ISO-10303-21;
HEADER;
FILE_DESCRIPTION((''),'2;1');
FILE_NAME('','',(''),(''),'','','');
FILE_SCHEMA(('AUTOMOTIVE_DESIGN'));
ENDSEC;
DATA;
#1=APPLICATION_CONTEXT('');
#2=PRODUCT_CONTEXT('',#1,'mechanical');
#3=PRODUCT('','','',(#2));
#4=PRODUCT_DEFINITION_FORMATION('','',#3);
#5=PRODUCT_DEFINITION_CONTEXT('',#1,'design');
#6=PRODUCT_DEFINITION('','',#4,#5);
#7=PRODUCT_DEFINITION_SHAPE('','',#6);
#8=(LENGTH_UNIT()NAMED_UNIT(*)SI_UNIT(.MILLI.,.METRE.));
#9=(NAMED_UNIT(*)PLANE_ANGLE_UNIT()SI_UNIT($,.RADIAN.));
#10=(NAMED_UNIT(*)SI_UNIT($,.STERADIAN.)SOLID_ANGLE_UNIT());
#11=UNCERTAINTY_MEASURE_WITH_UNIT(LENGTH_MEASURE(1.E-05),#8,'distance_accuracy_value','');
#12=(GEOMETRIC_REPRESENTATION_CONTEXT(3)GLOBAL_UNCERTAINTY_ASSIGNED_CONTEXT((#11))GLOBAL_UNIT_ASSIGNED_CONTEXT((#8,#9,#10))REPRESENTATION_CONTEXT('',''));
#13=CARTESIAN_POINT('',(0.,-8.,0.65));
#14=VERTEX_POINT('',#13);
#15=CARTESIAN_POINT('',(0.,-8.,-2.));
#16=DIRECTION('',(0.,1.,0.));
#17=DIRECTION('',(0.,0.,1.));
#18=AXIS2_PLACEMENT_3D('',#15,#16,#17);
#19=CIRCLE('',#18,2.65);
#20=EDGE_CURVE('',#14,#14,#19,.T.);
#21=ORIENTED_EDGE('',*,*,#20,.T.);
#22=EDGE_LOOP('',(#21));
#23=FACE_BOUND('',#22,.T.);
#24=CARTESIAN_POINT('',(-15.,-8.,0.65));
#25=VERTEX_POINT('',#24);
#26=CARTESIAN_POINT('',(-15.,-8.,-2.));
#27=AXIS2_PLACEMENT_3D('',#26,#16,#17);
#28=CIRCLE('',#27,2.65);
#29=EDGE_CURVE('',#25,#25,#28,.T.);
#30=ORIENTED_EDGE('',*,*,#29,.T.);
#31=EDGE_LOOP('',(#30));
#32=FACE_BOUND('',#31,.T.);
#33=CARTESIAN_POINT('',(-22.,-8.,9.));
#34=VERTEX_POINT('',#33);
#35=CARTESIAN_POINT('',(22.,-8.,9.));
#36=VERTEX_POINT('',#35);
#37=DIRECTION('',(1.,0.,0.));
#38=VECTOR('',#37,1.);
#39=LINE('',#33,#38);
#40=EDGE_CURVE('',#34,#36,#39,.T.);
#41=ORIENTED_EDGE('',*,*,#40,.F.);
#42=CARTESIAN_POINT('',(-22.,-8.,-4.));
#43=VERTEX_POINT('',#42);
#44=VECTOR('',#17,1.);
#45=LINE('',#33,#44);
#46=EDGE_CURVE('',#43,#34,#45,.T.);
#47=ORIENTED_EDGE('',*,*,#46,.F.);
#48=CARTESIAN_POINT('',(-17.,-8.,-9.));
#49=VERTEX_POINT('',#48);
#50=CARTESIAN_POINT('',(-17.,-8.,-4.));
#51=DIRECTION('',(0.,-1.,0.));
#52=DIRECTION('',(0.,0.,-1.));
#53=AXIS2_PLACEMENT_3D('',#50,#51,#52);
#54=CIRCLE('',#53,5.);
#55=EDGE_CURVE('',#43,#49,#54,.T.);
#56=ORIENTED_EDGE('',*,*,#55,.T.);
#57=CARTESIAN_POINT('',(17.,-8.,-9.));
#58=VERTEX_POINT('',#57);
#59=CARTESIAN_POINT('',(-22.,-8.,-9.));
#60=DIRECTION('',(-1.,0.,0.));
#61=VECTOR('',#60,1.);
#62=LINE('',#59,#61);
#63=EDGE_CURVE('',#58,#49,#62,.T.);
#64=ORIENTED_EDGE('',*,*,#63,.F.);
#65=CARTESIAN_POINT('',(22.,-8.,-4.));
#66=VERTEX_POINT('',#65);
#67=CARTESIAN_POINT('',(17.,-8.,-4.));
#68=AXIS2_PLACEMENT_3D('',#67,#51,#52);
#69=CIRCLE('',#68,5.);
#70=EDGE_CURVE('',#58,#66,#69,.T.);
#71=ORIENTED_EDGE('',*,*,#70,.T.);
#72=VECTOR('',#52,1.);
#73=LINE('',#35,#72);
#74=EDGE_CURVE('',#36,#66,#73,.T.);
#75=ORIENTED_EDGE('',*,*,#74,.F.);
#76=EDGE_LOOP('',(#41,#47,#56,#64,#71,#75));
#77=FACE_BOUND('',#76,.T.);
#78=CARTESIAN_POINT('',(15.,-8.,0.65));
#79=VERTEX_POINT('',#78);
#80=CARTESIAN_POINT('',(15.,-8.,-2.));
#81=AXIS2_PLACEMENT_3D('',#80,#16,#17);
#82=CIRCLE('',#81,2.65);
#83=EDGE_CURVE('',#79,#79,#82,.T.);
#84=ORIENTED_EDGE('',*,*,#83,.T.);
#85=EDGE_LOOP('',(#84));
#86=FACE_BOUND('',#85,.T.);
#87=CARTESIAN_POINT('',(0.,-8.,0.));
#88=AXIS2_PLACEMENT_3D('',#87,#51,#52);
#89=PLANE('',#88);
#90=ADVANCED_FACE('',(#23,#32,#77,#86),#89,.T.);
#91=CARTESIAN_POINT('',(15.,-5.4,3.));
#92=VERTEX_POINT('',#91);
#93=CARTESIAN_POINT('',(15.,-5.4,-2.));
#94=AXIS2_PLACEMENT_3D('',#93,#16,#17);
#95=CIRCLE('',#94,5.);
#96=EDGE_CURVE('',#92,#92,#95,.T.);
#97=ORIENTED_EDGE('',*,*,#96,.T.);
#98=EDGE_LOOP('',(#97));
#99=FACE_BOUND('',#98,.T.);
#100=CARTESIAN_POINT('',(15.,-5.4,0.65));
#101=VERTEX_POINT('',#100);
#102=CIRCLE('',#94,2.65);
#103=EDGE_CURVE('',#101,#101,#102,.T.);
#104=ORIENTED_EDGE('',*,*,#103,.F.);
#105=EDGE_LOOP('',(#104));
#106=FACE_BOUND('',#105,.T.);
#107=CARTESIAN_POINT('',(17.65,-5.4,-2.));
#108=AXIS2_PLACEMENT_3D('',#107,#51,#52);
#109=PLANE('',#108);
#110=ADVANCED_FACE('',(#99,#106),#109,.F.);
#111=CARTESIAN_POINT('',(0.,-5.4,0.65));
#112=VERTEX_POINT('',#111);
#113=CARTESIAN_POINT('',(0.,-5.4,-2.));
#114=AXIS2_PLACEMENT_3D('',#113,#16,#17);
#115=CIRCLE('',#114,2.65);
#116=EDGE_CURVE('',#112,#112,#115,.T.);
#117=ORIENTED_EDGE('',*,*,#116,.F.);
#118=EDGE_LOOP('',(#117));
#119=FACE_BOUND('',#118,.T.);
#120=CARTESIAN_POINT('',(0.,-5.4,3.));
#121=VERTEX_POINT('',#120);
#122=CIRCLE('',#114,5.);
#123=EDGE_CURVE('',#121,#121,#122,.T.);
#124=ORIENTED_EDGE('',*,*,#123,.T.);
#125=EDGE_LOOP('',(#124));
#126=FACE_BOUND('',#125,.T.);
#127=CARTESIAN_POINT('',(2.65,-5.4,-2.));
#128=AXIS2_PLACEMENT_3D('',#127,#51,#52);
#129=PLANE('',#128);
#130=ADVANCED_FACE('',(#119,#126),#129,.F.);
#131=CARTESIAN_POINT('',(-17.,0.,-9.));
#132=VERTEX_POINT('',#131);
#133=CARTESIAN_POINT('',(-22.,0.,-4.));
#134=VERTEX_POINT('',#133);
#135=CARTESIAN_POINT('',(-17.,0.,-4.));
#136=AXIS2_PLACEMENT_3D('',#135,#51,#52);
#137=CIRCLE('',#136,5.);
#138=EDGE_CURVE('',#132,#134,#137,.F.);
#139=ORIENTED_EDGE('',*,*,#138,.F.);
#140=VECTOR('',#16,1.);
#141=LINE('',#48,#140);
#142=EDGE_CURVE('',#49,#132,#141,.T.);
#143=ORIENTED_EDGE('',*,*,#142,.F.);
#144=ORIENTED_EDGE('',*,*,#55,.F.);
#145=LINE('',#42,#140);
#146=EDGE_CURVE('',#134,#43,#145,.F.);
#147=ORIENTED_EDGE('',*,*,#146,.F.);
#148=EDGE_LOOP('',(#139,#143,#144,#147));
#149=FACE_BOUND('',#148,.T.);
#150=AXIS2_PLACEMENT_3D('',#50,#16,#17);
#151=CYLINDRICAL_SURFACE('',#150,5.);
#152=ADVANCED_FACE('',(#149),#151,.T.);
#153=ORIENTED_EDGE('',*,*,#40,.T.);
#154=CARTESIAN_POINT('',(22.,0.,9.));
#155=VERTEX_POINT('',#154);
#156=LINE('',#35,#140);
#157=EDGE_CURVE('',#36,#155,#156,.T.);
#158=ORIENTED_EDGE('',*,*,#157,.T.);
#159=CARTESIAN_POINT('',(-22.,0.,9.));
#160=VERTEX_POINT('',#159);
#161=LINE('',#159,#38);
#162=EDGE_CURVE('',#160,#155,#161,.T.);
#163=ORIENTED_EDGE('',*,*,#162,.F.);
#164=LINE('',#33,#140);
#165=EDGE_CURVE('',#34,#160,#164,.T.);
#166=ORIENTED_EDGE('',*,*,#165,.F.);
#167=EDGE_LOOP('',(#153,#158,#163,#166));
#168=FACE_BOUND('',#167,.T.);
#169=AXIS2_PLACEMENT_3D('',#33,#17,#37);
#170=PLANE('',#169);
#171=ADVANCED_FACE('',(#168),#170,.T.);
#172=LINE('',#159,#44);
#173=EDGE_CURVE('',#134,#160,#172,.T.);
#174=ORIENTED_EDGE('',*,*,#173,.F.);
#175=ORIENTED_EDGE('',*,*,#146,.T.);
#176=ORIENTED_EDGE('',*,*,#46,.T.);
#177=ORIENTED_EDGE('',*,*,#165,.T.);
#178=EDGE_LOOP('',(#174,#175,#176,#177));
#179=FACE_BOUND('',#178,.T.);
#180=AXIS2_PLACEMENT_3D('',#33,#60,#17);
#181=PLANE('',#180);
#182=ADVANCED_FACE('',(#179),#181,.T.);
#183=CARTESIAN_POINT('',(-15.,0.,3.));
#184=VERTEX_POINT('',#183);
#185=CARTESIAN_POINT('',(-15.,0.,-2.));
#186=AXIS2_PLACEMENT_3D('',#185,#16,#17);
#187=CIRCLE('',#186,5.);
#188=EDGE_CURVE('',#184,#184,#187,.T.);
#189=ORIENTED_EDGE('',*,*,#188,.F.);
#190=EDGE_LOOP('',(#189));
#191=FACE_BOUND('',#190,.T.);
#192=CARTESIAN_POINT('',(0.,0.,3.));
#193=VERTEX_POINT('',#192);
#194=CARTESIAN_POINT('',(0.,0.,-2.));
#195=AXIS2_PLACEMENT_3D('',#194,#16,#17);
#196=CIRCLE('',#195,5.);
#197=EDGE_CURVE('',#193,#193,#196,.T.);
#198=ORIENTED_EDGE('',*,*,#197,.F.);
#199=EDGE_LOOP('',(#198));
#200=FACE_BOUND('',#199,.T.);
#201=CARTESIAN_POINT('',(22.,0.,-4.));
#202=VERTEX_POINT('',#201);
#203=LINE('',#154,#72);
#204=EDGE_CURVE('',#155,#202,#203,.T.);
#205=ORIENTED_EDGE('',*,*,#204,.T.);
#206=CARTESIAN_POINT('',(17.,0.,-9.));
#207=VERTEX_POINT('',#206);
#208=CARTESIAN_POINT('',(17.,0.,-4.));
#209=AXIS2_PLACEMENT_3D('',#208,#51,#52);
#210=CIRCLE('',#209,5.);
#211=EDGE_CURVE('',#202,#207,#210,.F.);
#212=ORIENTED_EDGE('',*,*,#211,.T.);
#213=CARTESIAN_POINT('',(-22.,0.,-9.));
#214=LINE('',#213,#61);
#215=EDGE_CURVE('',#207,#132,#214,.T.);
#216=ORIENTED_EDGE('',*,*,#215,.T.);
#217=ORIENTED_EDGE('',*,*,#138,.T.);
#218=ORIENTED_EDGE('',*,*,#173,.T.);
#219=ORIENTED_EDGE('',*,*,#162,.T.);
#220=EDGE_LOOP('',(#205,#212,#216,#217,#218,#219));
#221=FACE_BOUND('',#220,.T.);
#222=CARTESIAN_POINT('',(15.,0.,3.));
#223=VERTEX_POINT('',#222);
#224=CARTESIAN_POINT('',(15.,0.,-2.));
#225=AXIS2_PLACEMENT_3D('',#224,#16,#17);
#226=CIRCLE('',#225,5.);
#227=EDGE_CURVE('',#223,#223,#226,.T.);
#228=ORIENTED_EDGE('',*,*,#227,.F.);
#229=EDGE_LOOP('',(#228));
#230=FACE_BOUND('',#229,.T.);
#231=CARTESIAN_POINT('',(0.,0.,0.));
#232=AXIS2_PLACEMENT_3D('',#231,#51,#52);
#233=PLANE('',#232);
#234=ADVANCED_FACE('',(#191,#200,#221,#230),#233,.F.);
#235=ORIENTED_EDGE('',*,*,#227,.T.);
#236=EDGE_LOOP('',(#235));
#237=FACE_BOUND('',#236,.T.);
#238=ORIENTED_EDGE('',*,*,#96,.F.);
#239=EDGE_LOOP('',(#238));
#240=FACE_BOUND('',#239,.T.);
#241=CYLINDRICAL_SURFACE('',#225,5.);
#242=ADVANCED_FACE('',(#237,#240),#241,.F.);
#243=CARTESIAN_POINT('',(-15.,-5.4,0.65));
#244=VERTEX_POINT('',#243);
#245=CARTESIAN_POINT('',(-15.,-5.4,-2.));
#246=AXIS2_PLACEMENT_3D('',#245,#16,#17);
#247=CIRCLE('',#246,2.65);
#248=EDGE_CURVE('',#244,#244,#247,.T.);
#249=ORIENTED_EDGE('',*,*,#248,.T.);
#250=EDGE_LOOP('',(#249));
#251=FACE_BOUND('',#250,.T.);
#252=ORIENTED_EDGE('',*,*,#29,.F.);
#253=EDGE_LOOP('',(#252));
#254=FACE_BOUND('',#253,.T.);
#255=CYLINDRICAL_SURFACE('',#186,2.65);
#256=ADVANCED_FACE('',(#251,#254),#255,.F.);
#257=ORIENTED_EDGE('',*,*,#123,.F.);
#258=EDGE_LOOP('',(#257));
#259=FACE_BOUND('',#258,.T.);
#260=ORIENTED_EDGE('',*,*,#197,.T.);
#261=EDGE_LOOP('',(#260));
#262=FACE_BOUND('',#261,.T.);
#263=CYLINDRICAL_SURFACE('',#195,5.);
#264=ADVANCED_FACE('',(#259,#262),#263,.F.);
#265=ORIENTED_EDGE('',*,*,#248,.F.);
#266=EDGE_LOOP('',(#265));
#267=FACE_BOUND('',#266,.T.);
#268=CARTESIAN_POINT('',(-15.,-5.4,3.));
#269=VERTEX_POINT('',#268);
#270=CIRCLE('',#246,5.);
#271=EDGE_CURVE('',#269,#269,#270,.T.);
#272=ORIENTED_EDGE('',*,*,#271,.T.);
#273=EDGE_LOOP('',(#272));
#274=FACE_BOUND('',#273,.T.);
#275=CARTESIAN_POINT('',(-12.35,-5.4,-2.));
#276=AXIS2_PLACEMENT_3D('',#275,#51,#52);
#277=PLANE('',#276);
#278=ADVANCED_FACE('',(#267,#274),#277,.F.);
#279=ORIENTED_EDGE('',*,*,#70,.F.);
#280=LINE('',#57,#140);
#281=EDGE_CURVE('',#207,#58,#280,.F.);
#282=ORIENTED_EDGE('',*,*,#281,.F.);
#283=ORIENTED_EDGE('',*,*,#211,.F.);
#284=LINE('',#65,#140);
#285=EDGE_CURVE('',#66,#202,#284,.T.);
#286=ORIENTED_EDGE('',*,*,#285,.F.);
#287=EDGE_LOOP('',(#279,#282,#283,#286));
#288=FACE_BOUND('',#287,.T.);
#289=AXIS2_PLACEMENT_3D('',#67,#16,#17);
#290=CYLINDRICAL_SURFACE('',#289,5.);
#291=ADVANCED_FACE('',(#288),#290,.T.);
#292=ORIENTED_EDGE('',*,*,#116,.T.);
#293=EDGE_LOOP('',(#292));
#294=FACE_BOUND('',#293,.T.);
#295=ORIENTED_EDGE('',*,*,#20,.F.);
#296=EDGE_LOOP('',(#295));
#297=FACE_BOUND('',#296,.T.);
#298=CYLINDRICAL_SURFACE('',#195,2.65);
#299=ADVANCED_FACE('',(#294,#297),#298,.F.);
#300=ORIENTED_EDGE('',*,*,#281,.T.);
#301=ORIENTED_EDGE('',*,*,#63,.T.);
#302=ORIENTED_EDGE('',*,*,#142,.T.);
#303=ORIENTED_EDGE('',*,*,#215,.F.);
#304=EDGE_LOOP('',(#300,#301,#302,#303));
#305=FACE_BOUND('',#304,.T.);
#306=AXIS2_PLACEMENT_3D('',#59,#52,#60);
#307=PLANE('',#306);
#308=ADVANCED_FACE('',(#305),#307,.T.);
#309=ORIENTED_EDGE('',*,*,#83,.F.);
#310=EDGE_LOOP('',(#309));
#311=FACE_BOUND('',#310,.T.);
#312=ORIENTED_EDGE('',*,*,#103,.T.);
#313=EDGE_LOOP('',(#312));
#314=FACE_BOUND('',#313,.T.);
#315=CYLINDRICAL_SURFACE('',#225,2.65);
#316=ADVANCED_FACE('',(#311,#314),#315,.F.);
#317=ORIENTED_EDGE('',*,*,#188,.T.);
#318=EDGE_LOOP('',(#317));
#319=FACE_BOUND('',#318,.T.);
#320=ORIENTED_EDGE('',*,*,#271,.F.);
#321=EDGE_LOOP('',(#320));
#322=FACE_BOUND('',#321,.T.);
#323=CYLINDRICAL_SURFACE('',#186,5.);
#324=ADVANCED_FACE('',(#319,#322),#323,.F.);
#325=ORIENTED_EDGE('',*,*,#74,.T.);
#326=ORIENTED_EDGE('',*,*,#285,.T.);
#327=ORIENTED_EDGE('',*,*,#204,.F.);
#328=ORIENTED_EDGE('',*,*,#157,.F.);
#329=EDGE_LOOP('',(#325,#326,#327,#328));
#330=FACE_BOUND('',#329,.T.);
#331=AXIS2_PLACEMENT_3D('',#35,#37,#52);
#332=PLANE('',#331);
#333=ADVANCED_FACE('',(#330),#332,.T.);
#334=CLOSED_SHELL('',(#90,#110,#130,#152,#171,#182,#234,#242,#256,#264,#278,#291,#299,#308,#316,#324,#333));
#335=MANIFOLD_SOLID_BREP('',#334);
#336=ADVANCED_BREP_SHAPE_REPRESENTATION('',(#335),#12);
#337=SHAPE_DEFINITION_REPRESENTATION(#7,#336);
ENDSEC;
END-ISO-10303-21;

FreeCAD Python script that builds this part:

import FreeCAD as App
import Part
import Sketcher
Q = App.Units.Quantity


def edges_at(feature, points):
    """Names of the edges that pass closest to the given points."""
    edges = feature.Shape.Edges
    near = lambda p: min(range(len(edges)), key=lambda i: edges[i].distToShape(Part.Vertex(*p))[0])
    return sorted({f"Edge{near(p) + 1}" for p in points})


def add_polygon(sketch, points):
    """Adds a closed chain of lines whose ends are joined by coincident constraints."""
    first, n = sketch.GeometryCount, len(points)
    for a, b in zip(points, points[1:] + points[:1]):
        sketch.addGeometry(Part.LineSegment(App.Vector(*a, 0), App.Vector(*b, 0)), False)
    for i in range(n):
        sketch.addConstraint(Sketcher.Constraint("Coincident", first + i, 2, first + (i + 1) % n, 1))

doc = App.newDocument("Part")
body = doc.addObject("PartDesign::Body", "Body")

sketch1 = body.newObject("Sketcher::SketchObject", "Sketch")
sketch1.AttachmentSupport = (doc.getObject("XZ_Plane"), [""])
sketch1.MapMode = "FlatFace"
add_polygon(sketch1, [(-22, -9), (-22, 9), (22, 9), (22, -9)])
sketch1.addConstraint([
    Sketcher.Constraint("Vertical", 0),
    Sketcher.Constraint("Horizontal", 1),
    Sketcher.Constraint("Vertical", 2),
    Sketcher.Constraint("Horizontal", 3),
    Sketcher.Constraint("Symmetric", 0, 2, 2, 2, -1, 1),
    Sketcher.Constraint("DistanceX", 1, 1, 1, 2, Q("44 mm")),
    Sketcher.Constraint("DistanceY", 0, 1, 0, 2, Q("18 mm")),
])
pad1 = body.newObject("PartDesign::Pad", "Pad")
pad1.Profile = sketch1
pad1.Length = 8

sketch2 = body.newObject("Sketcher::SketchObject", "Sketch001")
sketch2.AttachmentSupport = (doc.getObject("XZ_Plane"), [""])
sketch2.MapMode = "FlatFace"
sketch2.addGeometry([
    Part.Circle(App.Vector(-15, -2, 0), App.Vector(0, 0, 1), 2.65),
    Part.Circle(App.Vector(0, -2, 0), App.Vector(0, 0, 1), 2.65),
    Part.Circle(App.Vector(15, -2, 0), App.Vector(0, 0, 1), 2.65),
], False)
sketch2.addConstraint([
    Sketcher.Constraint("Equal", 0, 1),
    Sketcher.Constraint("Equal", 1, 2),
    Sketcher.Constraint("Symmetric", 0, 3, 2, 3, -2),
    Sketcher.Constraint("PointOnObject", 1, 3, -2),
    Sketcher.Constraint("Horizontal", 0, 3, 1, 3),
    Sketcher.Constraint("Diameter", 0, Q("5.3 mm")),
    Sketcher.Constraint("DistanceX", 0, 3, -1, 1, Q("15 mm")),
    Sketcher.Constraint("DistanceY", 0, 3, -1, 1, Q("2 mm")),
])
doc.recompute()
hole = body.newObject("PartDesign::Hole", "Hole")
hole.Profile = sketch2
hole.ThreadType = "None"
hole.Diameter = 5.3
hole.DepthType = "ThroughAll"
hole.HoleCutType = "Counterbore"
hole.HoleCutDiameter = 10
hole.HoleCutDepth = 5.4
hole.Reversed = True
doc.recompute()

fillet = body.newObject("PartDesign::Fillet", "Fillet")
fillet.Base = (hole, edges_at(hole, [(-22, -4, -9), (22, -4, -9)]))
fillet.Radius = 5

doc.recompute()
